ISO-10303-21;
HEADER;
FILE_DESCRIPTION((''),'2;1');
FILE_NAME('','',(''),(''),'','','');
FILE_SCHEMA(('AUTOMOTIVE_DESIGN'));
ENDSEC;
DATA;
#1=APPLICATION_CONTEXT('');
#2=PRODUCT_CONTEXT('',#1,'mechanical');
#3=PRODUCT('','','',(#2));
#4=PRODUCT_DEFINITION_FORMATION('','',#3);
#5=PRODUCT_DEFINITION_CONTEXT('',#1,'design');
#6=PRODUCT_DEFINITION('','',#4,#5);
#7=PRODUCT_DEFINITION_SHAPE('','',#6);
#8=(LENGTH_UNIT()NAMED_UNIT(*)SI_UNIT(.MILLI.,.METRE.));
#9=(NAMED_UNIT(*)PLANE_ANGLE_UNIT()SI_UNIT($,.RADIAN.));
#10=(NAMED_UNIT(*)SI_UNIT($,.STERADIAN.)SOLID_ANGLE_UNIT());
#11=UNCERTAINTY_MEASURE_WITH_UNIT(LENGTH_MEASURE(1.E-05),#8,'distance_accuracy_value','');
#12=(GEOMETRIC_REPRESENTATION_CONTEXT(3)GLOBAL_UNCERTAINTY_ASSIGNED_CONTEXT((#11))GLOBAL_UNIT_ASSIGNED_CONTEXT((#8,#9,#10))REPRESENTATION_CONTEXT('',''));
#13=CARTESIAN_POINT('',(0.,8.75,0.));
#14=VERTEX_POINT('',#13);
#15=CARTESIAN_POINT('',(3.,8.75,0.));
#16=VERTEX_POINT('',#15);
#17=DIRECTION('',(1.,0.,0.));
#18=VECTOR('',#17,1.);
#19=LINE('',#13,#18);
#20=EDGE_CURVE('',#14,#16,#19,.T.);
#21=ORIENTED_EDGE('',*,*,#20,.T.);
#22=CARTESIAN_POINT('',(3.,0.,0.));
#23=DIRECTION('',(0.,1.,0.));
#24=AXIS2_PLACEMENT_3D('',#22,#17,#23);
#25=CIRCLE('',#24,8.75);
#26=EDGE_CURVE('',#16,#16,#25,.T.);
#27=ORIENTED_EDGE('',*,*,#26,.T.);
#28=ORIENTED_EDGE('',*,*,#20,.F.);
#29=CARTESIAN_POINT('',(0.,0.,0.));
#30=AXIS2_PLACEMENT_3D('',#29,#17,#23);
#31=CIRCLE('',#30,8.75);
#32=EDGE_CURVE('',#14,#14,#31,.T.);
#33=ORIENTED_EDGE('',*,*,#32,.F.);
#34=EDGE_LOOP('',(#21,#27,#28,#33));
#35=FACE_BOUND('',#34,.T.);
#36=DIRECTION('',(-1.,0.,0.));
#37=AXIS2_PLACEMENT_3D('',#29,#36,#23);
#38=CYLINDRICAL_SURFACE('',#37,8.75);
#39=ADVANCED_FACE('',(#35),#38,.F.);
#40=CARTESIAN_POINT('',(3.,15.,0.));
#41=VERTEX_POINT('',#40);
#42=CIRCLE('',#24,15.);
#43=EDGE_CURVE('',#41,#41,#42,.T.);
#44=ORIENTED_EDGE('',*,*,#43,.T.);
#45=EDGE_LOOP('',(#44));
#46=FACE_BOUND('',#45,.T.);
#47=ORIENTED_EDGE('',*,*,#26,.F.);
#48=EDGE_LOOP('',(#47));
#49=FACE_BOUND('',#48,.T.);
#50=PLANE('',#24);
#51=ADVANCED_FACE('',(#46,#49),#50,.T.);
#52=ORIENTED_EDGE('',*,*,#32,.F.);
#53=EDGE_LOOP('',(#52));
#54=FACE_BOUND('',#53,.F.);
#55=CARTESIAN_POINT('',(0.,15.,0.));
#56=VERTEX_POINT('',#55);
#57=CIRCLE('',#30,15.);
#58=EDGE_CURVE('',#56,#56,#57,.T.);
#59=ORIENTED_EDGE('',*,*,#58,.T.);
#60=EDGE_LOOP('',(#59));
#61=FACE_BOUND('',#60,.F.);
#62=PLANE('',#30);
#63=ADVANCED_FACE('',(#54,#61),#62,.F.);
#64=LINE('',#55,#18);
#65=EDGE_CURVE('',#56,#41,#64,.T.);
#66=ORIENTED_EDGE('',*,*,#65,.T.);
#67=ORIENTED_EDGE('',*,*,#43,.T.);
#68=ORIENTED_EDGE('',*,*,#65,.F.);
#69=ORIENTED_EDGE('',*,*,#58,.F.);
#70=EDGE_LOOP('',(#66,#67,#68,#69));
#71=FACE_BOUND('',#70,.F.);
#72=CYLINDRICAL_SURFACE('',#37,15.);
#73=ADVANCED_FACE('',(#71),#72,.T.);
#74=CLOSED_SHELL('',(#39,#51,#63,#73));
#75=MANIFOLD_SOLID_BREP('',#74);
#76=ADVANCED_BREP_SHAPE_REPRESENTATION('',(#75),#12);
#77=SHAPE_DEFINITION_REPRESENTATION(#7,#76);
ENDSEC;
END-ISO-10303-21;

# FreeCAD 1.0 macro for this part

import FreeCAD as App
import Part
import Sketcher

V = App.Vector

doc = App.newDocument("Part")
body = doc.addObject("PartDesign::Body", "Body")

sketch1 = doc.addObject("Sketcher::SketchObject", "Sketch")
body.addObject(sketch1)
sketch1.AttachmentSupport = (doc.YZ_Plane, [""])
sketch1.MapMode = "FlatFace"
sketch1.addGeometry(Part.Circle(V(0, 0, 0), V(0, 0, 1), 15), False)
sketch1.addGeometry(Part.Circle(V(0, 0, 0), V(0, 0, 1), 9), False)
sketch1.addConstraint(Sketcher.Constraint("Coincident", 0, 3, -1, 1))
sketch1.addConstraint(Sketcher.Constraint("Coincident", 1, 3, -1, 1))
sketch1.addConstraint(Sketcher.Constraint("Diameter", 0, 30.0))
sketch1.addConstraint(Sketcher.Constraint("Diameter", 1, 17.5))
pad1 = doc.addObject("PartDesign::Pad", "Pad")
body.addObject(pad1)
pad1.Profile = sketch1
pad1.Length = 3

doc.recompute()
